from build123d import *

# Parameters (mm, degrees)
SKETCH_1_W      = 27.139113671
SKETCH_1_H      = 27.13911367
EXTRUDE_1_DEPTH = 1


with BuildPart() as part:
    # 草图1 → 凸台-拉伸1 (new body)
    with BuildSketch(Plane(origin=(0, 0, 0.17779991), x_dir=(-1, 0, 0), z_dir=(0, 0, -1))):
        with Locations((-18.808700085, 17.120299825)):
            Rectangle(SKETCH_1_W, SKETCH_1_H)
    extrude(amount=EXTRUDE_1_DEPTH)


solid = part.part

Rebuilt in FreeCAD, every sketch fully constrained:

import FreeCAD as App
import Part
import Sketcher

V = App.Vector


def add_polygon(sketch, points):
    """Adds a closed chain of lines whose ends are joined by coincident constraints."""
    first, n = sketch.GeometryCount, len(points)
    for a, b in zip(points, points[1:] + points[:1]):
        sketch.addGeometry(Part.LineSegment(App.Vector(*a, 0), App.Vector(*b, 0)), False)
    for i in range(n):
        sketch.addConstraint(Sketcher.Constraint("Coincident", first + i, 2, first + (i + 1) % n, 1))

doc = App.newDocument("Part")
body = doc.addObject("PartDesign::Body", "Body")

# Sketch on XY plane
sketch1 = body.newObject("Sketcher::SketchObject", "Sketch")
sketch1.AttachmentSupport = (doc.getObject("XY_Plane"), [""])
sketch1.MapMode = "FlatFace"
sketch1.AttachmentOffset = App.Placement(V(0, 0, 0.1778), App.Rotation())
add_polygon(sketch1, [(32, 31), (32, 4), (5, 4), (5, 31)])  # lines 0-3
sketch1.addConstraint(Sketcher.Constraint("Vertical", 0))
sketch1.addConstraint(Sketcher.Constraint("Horizontal", 1))
sketch1.addConstraint(Sketcher.Constraint("Vertical", 2))
sketch1.addConstraint(Sketcher.Constraint("Horizontal", 3))
sketch1.addConstraint(Sketcher.Constraint("Equal", 3, 0))
sketch1.addConstraint(Sketcher.Constraint("DistanceX", 1, 2, 1, 1, 27.139114))
sketch1.addConstraint(Sketcher.Constraint("DistanceX", -1, 1, 0, 2, 32.378257))
sketch1.addConstraint(Sketcher.Constraint("DistanceY", -1, 1, 0, 2, 3.550743))
pad1 = body.newObject("PartDesign::Pad", "Pad")
pad1.Profile = sketch1
pad1.Length = 1
pad1.Reversed = True

doc.recompute()
